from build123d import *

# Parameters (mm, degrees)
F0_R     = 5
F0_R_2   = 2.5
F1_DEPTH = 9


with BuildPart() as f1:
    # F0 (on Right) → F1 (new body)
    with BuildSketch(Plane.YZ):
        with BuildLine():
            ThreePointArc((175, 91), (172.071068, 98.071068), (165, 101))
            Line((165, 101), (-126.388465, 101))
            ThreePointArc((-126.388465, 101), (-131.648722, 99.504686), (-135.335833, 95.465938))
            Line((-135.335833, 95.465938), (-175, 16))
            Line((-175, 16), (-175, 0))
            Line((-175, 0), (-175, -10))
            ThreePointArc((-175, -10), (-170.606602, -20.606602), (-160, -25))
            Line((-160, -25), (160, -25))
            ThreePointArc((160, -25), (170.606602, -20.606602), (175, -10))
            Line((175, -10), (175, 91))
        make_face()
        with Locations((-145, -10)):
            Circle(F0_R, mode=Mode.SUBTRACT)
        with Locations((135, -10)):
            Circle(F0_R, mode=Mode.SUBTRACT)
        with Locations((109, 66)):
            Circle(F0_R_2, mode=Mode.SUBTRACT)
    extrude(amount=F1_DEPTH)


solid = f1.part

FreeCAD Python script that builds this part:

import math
import FreeCAD as App
import Part
import Sketcher
Q = App.Units.Quantity

doc = App.newDocument("Part")
body = doc.addObject("PartDesign::Body", "Body")

sketch1 = body.newObject("Sketcher::SketchObject", "Sketch")
sketch1.AttachmentSupport = (doc.getObject("YZ_Plane"), [""])
sketch1.MapMode = "FlatFace"
sketch1.addGeometry([
    Part.ArcOfCircle(Part.Circle(App.Vector(165, 91, 0), App.Vector(0, 0, 1), 10), math.radians(0), math.radians(90)),
    Part.LineSegment(App.Vector(165, 101, 0), App.Vector(-126.4, 101, 0)),
    Part.ArcOfCircle(Part.Circle(App.Vector(-126.4, 91, 0), App.Vector(0, 0, 1), 10), math.radians(90), math.radians(153)),
    Part.LineSegment(App.Vector(-135.3, 95.5, 0), App.Vector(-175, 16, 0)),
    Part.LineSegment(App.Vector(-175, 16, 0), App.Vector(-175, -10, 0)),
    Part.ArcOfCircle(Part.Circle(App.Vector(-160, -10, 0), App.Vector(0, 0, 1), 15), math.radians(180), math.radians(270)),
    Part.LineSegment(App.Vector(-160, -25, 0), App.Vector(160, -25, 0)),
    Part.ArcOfCircle(Part.Circle(App.Vector(160, -10, 0), App.Vector(0, 0, 1), 15), math.radians(-90), math.radians(0)),
    Part.LineSegment(App.Vector(175, -10, 0), App.Vector(175, 91, 0)),
    Part.Circle(App.Vector(-145, -10, 0), App.Vector(0, 0, 1), 5),
    Part.Circle(App.Vector(135, -10, 0), App.Vector(0, 0, 1), 5),
    Part.Circle(App.Vector(109, 66, 0), App.Vector(0, 0, 1), 2.5),
], False)
sketch1.addConstraint([
    Sketcher.Constraint("Tangent", 0, 2, 1, 1),
    Sketcher.Constraint("Tangent", 1, 2, 2, 1),
    Sketcher.Constraint("Tangent", 2, 2, 3, 1),
    Sketcher.Constraint("Coincident", 3, 2, 4, 1),
    Sketcher.Constraint("Tangent", 4, 2, 5, 1),
    Sketcher.Constraint("Tangent", 5, 2, 6, 1),
    Sketcher.Constraint("Tangent", 6, 2, 7, 1),
    Sketcher.Constraint("Tangent", 7, 2, 8, 1),
    Sketcher.Constraint("Tangent", 8, 2, 0, 1),
    Sketcher.Constraint("Horizontal", 1),
    Sketcher.Constraint("Vertical", 4),
    Sketcher.Constraint("Horizontal", 6),
    Sketcher.Constraint("Vertical", 8),
    Sketcher.Constraint("Equal", 5, 7),
    Sketcher.Constraint("Equal", 9, 10),
    Sketcher.Constraint("Horizontal", 7, 3, 9, 3),
    Sketcher.Constraint("Horizontal", 9, 3, 10, 3),
    Sketcher.Constraint("Diameter", 9, Q("10 mm")),
    Sketcher.Constraint("Diameter", 11, Q("5 mm")),
    Sketcher.Constraint("Radius", 0, Q("9.999999 mm")),
    Sketcher.Constraint("Radius", 5, Q("14.999999 mm")),
    Sketcher.Constraint("DistanceX", 6, 1, 6, 2, Q("320 mm")),
    Sketcher.Constraint("DistanceY", 4, 2, 4, 1, Q("26 mm")),
    Sketcher.Constraint("DistanceY", 8, 1, 8, 2, Q("101 mm")),
    Sketcher.Constraint("DistanceX", -1, 1, 0, 3, Q("165.000001 mm")),
    Sketcher.Constraint("DistanceY", -1, 1, 0, 3, Q("91.000001 mm")),
    Sketcher.Constraint("DistanceX", 9, 3, -1, 1, Q("145 mm")),
    Sketcher.Constraint("DistanceX", -1, 1, 10, 3, Q("135 mm")),
    Sketcher.Constraint("DistanceX", -1, 1, 11, 3, Q("109 mm")),
    Sketcher.Constraint("DistanceY", -1, 1, 11, 3, Q("66 mm")),
    Sketcher.Constraint("DistanceY", 5, 3, 2, 3, Q("100.999998 mm")),
    Sketcher.Constraint("Distance", 3, Q("88.814872 mm")),
])
pad1 = body.newObject("PartDesign::Pad", "Pad")
pad1.Profile = sketch1
pad1.Length = 9

doc.recompute()
